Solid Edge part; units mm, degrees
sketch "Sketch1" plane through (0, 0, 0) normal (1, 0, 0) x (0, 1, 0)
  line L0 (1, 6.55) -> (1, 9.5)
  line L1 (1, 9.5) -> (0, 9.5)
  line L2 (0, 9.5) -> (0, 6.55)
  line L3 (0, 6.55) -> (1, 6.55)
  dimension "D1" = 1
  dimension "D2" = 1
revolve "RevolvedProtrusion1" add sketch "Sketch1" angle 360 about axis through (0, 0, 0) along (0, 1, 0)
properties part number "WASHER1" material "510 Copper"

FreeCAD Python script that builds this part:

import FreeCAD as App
import Part
import Sketcher

V = App.Vector

doc = App.newDocument("Part")
body = doc.addObject("PartDesign::Body", "Body")

sketch1 = body.newObject("Sketcher::SketchObject", "Sketch")
sketch1.AttachmentSupport = (doc.getObject("YZ_Plane"), [""])
sketch1.MapMode = "FlatFace"
sketch1.addGeometry([
    Part.LineSegment(V(0, 6.55, 0), V(1, 6.55, 0)),
    Part.LineSegment(V(1, 6.55, 0), V(1, 9.5, 0)),
    Part.LineSegment(V(1, 9.5, 0), V(0, 9.5, 0)),
    Part.LineSegment(V(0, 9.5, 0), V(0, 6.55, 0)),
], False)
sketch1.addConstraint([
    Sketcher.Constraint("Coincident", 0, 2, 1, 1),
    Sketcher.Constraint("Coincident", 1, 2, 2, 1),
    Sketcher.Constraint("Coincident", 2, 2, 3, 1),
    Sketcher.Constraint("Coincident", 3, 2, 0, 1),
    Sketcher.Constraint("Horizontal", 0),
    Sketcher.Constraint("Vertical", 1),
    Sketcher.Constraint("Horizontal", 2),
    Sketcher.Constraint("Vertical", 3),
    Sketcher.Constraint("PointOnObject", 2, 2, -2),
    Sketcher.Constraint("DistanceX", 0, 1, 0, 2, 1.0),
    Sketcher.Constraint("DistanceY", 1, 1, 1, 2, 2.95),
    Sketcher.Constraint("DistanceY", -1, 1, 1, 2, 9.5),
])
revolution = body.newObject("PartDesign::Revolution", "Revolution")
revolution.Profile = sketch1
revolution.ReferenceAxis = (sketch1, ["H_Axis"])
revolution.Angle = 360

doc.recompute()
